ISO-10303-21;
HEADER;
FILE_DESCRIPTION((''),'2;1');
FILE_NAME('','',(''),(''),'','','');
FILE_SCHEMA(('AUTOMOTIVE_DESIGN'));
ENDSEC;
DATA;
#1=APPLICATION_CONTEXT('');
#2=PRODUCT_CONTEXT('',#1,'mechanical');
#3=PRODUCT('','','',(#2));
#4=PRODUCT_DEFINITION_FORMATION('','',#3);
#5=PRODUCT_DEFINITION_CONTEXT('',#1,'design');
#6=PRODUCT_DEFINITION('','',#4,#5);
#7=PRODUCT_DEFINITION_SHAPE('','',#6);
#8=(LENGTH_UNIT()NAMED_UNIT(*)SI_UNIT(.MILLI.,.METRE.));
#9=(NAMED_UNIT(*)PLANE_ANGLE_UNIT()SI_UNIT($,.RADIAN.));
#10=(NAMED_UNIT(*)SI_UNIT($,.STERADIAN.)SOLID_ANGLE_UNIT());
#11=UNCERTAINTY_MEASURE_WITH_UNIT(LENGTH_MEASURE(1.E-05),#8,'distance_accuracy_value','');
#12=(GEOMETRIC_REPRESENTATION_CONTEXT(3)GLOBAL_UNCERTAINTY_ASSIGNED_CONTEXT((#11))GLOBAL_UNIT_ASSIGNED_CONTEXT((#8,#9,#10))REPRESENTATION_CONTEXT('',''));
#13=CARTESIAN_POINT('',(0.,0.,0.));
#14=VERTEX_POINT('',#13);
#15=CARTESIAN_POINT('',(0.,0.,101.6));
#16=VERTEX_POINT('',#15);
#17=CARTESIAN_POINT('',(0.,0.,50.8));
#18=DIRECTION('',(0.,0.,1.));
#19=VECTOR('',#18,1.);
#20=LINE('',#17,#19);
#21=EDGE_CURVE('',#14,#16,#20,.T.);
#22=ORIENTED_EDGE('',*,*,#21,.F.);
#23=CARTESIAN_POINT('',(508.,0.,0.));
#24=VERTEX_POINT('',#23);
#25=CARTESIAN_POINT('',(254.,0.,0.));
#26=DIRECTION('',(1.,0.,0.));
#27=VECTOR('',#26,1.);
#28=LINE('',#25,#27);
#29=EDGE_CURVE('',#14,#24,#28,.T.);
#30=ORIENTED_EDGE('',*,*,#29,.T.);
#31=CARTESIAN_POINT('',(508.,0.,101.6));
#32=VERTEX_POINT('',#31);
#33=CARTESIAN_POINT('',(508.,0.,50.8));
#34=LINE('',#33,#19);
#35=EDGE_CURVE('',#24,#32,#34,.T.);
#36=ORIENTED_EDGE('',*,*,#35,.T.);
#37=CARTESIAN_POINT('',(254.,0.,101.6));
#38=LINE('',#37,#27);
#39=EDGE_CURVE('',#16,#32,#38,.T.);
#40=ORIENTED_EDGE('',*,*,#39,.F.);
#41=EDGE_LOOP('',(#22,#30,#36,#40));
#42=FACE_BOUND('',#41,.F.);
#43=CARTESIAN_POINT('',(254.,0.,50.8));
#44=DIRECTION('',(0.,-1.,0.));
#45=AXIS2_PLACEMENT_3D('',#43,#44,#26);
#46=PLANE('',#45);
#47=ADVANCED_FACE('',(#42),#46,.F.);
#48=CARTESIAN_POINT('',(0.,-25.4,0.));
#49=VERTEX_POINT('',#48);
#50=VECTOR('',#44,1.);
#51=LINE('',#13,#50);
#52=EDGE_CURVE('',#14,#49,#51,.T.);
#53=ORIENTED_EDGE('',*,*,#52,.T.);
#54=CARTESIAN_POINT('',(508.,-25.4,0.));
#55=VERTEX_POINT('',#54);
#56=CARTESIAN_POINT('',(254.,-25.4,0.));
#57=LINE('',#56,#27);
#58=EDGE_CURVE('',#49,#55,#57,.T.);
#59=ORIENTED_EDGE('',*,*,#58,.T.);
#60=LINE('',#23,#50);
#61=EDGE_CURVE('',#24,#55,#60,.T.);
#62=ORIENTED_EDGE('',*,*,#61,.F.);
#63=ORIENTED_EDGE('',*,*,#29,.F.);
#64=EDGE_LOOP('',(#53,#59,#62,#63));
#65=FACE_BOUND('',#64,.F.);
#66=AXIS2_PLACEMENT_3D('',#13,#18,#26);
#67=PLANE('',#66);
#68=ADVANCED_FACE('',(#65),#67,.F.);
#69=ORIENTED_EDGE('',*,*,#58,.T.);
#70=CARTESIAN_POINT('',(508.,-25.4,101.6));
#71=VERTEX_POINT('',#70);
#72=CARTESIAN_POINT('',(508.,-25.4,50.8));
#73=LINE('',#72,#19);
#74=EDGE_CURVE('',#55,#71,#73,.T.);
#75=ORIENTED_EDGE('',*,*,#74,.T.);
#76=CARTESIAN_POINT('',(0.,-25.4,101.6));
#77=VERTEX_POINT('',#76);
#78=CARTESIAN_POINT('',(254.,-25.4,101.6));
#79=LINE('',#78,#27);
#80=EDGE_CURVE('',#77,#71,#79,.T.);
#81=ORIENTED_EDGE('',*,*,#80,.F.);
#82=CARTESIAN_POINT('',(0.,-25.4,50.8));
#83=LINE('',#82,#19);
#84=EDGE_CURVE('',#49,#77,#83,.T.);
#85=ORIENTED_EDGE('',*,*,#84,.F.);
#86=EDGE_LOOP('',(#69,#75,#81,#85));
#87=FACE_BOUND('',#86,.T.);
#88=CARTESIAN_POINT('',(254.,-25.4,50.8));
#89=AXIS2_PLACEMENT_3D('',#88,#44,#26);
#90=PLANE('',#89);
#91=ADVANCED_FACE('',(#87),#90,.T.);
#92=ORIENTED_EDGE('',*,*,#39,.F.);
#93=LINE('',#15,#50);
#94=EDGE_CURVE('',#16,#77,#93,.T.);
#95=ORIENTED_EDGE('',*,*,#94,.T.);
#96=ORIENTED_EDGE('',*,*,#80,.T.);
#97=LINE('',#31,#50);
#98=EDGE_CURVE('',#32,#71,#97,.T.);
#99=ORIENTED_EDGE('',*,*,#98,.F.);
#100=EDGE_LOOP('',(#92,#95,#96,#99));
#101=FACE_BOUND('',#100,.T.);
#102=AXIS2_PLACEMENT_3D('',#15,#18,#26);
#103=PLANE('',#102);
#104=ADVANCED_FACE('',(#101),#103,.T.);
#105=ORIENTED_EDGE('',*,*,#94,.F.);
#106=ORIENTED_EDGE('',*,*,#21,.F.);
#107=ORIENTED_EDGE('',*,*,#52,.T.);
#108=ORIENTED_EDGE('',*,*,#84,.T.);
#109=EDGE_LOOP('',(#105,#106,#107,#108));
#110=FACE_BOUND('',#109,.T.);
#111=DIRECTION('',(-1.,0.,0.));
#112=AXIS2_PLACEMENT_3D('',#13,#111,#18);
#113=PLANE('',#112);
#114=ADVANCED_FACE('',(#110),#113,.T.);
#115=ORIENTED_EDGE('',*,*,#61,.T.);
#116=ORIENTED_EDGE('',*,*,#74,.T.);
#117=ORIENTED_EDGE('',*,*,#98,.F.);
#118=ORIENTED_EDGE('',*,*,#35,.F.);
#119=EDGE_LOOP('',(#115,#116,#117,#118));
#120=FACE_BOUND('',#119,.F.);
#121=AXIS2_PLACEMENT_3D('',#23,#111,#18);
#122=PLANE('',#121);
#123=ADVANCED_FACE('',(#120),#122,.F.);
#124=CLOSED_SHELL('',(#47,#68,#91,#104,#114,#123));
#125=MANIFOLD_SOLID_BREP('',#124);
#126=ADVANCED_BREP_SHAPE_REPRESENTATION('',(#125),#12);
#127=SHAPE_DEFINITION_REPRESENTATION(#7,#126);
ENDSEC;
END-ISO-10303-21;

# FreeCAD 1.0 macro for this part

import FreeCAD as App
import Part
import Sketcher

V = App.Vector
Q = App.Units.Quantity


def add_polygon(sketch, points):
    """Adds a closed chain of lines whose ends are joined by coincident constraints."""
    first, n = sketch.GeometryCount, len(points)
    for a, b in zip(points, points[1:] + points[:1]):
        sketch.addGeometry(Part.LineSegment(App.Vector(*a, 0), App.Vector(*b, 0)), False)
    for i in range(n):
        sketch.addConstraint(Sketcher.Constraint("Coincident", first + i, 2, first + (i + 1) % n, 1))

doc = App.newDocument("Part")
body = doc.addObject("PartDesign::Body", "Body")

# Sketch on XZ plane
sketch1 = body.newObject("Sketcher::SketchObject", "Sketch")
sketch1.AttachmentSupport = (doc.getObject("XZ_Plane"), [""])
sketch1.MapMode = "FlatFace"
add_polygon(sketch1, [(0, 102), (0, 0), (508, 0), (508, 102)])  # lines 0-3
sketch1.addConstraint(Sketcher.Constraint("Vertical", 0))
sketch1.addConstraint(Sketcher.Constraint("Horizontal", 1))
sketch1.addConstraint(Sketcher.Constraint("Vertical", 2))
sketch1.addConstraint(Sketcher.Constraint("Horizontal", 3))
sketch1.addConstraint(Sketcher.Constraint("Coincident", 0, 2, -1, 1))
sketch1.addConstraint(Sketcher.Constraint("DistanceX", 1, 1, 1, 2, Q("20 in")))
sketch1.addConstraint(Sketcher.Constraint("DistanceY", 0, 2, 0, 1, Q("4 in")))
pad1 = body.newObject("PartDesign::Pad", "Pad")
pad1.Profile = sketch1
pad1.Length = Q("1 in")

# Sketch on YZ plane
sketch2 = body.newObject("Sketcher::SketchObject", "Sketch001")
sketch2.AttachmentSupport = (doc.getObject("YZ_Plane"), [""])
sketch2.MapMode = "FlatFace"
sketch2.AttachmentOffset = App.Placement(V(0, 0, 20 * 25.4), App.Rotation())
add_polygon(sketch2, [(-25, 0), (0, 102), (-25, 102)])  # lines 0-2
sketch2.addConstraint(Sketcher.Constraint("Horizontal", 1))
sketch2.addConstraint(Sketcher.Constraint("Vertical", 2))
sketch2.addConstraint(Sketcher.Constraint("PointOnObject", 0, 2, -2))
sketch2.addConstraint(Sketcher.Constraint("PointOnObject", 2, 2, -1))
sketch2.addConstraint(Sketcher.Constraint("DistanceX", 1, 2, 1, 1, Q("1 in")))
sketch2.addConstraint(Sketcher.Constraint("DistanceY", 2, 2, 2, 1, Q("4 in")))
pocket1 = body.newObject("PartDesign::Pocket", "Pocket")
pocket1.Profile = sketch2
pocket1.Length = Q("1 in")
pocket1.Reversed = True

doc.recompute()
